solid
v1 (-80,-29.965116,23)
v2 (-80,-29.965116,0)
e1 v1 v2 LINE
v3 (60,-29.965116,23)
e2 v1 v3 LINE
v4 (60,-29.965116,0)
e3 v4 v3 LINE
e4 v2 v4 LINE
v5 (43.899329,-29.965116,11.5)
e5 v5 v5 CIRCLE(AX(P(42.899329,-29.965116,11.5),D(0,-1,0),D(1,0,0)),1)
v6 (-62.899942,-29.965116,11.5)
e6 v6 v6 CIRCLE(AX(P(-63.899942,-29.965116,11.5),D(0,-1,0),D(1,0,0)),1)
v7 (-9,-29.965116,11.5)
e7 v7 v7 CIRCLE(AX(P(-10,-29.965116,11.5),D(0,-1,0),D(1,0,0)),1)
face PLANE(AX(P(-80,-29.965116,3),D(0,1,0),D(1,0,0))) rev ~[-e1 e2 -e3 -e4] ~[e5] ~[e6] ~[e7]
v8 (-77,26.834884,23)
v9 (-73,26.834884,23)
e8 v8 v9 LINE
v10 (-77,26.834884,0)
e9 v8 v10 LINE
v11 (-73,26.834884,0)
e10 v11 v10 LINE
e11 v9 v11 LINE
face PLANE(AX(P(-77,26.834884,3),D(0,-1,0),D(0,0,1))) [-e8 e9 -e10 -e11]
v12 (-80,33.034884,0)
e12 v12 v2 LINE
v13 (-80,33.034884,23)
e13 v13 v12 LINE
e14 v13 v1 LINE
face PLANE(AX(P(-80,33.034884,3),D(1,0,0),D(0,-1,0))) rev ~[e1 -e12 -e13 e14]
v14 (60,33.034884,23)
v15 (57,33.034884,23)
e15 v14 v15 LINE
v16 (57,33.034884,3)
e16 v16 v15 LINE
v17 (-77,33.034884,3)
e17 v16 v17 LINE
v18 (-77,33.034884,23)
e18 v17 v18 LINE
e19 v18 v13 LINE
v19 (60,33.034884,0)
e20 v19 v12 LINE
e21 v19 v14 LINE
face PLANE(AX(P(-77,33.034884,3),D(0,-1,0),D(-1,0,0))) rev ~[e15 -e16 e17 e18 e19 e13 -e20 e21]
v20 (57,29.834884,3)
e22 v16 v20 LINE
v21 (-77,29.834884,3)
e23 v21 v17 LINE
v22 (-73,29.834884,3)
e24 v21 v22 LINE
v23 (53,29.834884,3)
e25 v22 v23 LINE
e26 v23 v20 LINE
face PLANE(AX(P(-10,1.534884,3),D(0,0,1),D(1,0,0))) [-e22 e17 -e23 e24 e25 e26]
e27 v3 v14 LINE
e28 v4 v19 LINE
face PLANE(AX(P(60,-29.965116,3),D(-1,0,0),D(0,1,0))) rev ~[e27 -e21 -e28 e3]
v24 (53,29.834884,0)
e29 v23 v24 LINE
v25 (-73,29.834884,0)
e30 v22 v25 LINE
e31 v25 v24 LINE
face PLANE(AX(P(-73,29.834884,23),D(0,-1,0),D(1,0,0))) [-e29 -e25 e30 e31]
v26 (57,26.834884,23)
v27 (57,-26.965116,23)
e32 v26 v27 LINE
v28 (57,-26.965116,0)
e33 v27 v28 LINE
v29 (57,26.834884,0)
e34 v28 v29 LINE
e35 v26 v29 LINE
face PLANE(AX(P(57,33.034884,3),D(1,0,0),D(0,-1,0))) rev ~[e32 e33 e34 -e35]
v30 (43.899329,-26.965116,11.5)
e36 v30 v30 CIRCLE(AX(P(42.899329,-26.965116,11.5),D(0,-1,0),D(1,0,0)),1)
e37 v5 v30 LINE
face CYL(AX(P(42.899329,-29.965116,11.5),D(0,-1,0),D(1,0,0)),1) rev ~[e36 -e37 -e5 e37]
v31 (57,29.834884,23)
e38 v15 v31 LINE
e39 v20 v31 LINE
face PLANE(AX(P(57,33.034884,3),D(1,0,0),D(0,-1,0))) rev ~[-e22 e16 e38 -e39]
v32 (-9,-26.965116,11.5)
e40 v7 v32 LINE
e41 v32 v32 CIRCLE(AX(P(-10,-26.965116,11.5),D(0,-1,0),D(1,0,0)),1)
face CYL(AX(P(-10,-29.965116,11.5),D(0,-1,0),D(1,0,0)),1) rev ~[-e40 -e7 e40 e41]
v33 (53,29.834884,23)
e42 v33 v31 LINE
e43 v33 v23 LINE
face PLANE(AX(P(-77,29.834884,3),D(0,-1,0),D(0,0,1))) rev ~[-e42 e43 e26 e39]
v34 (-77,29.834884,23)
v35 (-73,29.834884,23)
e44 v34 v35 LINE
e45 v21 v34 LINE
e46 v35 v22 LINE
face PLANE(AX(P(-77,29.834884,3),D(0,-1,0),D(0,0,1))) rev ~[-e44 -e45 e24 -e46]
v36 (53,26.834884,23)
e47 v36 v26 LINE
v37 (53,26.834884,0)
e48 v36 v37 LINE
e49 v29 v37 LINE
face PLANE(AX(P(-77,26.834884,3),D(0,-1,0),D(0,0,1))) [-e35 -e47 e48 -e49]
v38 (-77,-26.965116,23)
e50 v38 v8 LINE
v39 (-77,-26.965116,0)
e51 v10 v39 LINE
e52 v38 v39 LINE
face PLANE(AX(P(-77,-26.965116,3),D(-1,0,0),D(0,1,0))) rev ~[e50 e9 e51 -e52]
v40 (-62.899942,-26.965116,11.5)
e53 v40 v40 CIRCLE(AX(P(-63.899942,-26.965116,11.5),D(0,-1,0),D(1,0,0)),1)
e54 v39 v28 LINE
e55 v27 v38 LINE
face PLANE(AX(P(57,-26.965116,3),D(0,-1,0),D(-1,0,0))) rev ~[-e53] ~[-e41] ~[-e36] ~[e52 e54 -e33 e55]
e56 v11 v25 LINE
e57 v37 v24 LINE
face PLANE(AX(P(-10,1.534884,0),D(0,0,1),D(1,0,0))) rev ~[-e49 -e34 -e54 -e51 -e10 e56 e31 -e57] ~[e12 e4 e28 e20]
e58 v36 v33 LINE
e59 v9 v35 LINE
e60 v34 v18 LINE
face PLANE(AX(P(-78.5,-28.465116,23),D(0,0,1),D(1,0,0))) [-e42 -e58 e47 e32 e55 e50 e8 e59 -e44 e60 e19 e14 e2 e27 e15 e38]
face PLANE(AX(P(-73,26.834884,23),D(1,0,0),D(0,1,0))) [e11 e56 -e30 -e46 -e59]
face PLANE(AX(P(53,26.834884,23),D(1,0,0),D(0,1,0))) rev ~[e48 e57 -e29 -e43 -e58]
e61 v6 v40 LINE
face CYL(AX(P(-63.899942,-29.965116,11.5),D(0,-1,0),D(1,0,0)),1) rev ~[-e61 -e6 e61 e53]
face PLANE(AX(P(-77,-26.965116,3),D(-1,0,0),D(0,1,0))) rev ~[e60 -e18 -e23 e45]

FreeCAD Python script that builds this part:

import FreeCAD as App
import Part
import Sketcher

V = App.Vector
Q = App.Units.Quantity


def add_polygon(sketch, points):
    """Adds a closed chain of lines whose ends are joined by coincident constraints."""
    first, n = sketch.GeometryCount, len(points)
    for a, b in zip(points, points[1:] + points[:1]):
        sketch.addGeometry(Part.LineSegment(App.Vector(*a, 0), App.Vector(*b, 0)), False)
    for i in range(n):
        sketch.addConstraint(Sketcher.Constraint("Coincident", first + i, 2, first + (i + 1) % n, 1))

doc = App.newDocument("Part")
body = doc.addObject("PartDesign::Body", "Body")

# Sketch on XY plane
sketch1 = doc.addObject("Sketcher::SketchObject", "Sketch")
body.addObject(sketch1)
sketch1.AttachmentSupport = (doc.XY_Plane, [""])
sketch1.MapMode = "FlatFace"
add_polygon(sketch1, [(-80, 33), (-80, -30), (60, -30), (60, 33)])  # lines 0-3
sketch1.addGeometry(Part.Circle(V(25, 0, 0), V(0, 0, 1), 8), False)  # 4
sketch1.addGeometry(Part.Circle(V(-45, 1, 0), V(0, 0, 1), 8), False)  # 5
sketch1.addConstraint(Sketcher.Constraint("Vertical", 0))
sketch1.addConstraint(Sketcher.Constraint("Horizontal", 1))
sketch1.addConstraint(Sketcher.Constraint("Vertical", 2))
sketch1.addConstraint(Sketcher.Constraint("Horizontal", 3))
sketch1.addConstraint(Sketcher.Constraint("Equal", 4, 5))
sketch1.addConstraint(Sketcher.Constraint("Diameter", 4, Q("16 mm")))
sketch1.addConstraint(Sketcher.Constraint("DistanceX", 1, 1, 1, 2, Q("140 mm")))
sketch1.addConstraint(Sketcher.Constraint("DistanceY", 0, 2, 0, 1, Q("63 mm")))
sketch1.addConstraint(Sketcher.Constraint("DistanceX", -1, 1, 4, 3, Q("25 mm")))
sketch1.addConstraint(Sketcher.Constraint("DistanceX", 5, 3, -1, 1, Q("45 mm")))
sketch1.addConstraint(Sketcher.Constraint("DistanceX", 0, 2, -1, 1, Q("80 mm")))
sketch1.addConstraint(Sketcher.Constraint("DistanceY", 0, 2, 5, 3, Q("31 mm")))
sketch1.addConstraint(Sketcher.Constraint("DistanceY", 4, 3, -1, 1, Q("0.468963 mm")))
sketch1.addConstraint(Sketcher.Constraint("DistanceY", -1, 1, 5, 3, Q("1.034884 mm")))
pad1 = doc.addObject("PartDesign::Pad", "Pad")
body.addObject(pad1)
pad1.Profile = sketch1
pad1.Length = 3

# Sketch on XY plane
sketch2 = doc.addObject("Sketcher::SketchObject", "Sketch001")
body.addObject(sketch2)
sketch2.AttachmentSupport = (doc.XY_Plane, [""])
sketch2.MapMode = "FlatFace"
sketch2.AttachmentOffset = App.Placement(V(0, 0, 3), App.Rotation())
add_polygon(sketch2, [(-80, -30), (60, -30), (60, 33), (57, 33), (57, -27), (-77, -27), (-77, 33), (-80, 33)])  # lines 0-7
sketch2.addConstraint(Sketcher.Constraint("Horizontal", 0))
sketch2.addConstraint(Sketcher.Constraint("Vertical", 1))
sketch2.addConstraint(Sketcher.Constraint("Horizontal", 2))
sketch2.addConstraint(Sketcher.Constraint("Vertical", 3))
sketch2.addConstraint(Sketcher.Constraint("Horizontal", 4))
sketch2.addConstraint(Sketcher.Constraint("Vertical", 5))
sketch2.addConstraint(Sketcher.Constraint("Horizontal", 6))
sketch2.addConstraint(Sketcher.Constraint("Vertical", 7))
sketch2.addConstraint(Sketcher.Constraint("Horizontal", 2, 2, 5, 2))
sketch2.addConstraint(Sketcher.Constraint("Equal", 2, 6))
sketch2.addConstraint(Sketcher.Constraint("DistanceX", 0, 1, 0, 2, Q("140 mm")))
sketch2.addConstraint(Sketcher.Constraint("DistanceX", 2, 2, 2, 1, Q("3 mm")))
sketch2.addConstraint(Sketcher.Constraint("DistanceY", 1, 1, 1, 2, Q("63 mm")))
sketch2.addConstraint(Sketcher.Constraint("DistanceY", 3, 2, 3, 1, Q("60 mm")))
sketch2.addConstraint(Sketcher.Constraint("DistanceX", -1, 1, 0, 2, Q("60 mm")))
sketch2.addConstraint(Sketcher.Constraint("DistanceY", 0, 2, -1, 1, Q("29.965116 mm")))
pad2 = doc.addObject("PartDesign::Pad", "Pad001")
body.addObject(pad2)
pad2.Profile = sketch2
pad2.Length = 20

# Sketch on YZ plane
sketch3 = doc.addObject("Sketcher::SketchObject", "Sketch002")
body.addObject(sketch3)
sketch3.AttachmentSupport = (doc.YZ_Plane, [""])
sketch3.MapMode = "FlatFace"
sketch3.AttachmentOffset = App.Placement(V(0, 0, -77), App.Rotation())
add_polygon(sketch3, [(26.8, 23), (26.8, 3), (29.8, 3), (29.8, 23)])  # lines 0-3
sketch3.addConstraint(Sketcher.Constraint("Vertical", 0))
sketch3.addConstraint(Sketcher.Constraint("Horizontal", 1))
sketch3.addConstraint(Sketcher.Constraint("Vertical", 2))
sketch3.addConstraint(Sketcher.Constraint("Horizontal", 3))
sketch3.addConstraint(Sketcher.Constraint("DistanceX", 1, 1, 1, 2, Q("3 mm")))
sketch3.addConstraint(Sketcher.Constraint("DistanceY", 0, 2, 0, 1, Q("20 mm")))
sketch3.addConstraint(Sketcher.Constraint("DistanceY", -1, 1, 0, 2, Q("3 mm")))
sketch3.addConstraint(Sketcher.Constraint("DistanceX", -1, 1, 0, 2, Q("26.834884 mm")))
pad3 = doc.addObject("PartDesign::Pad", "Pad002")
body.addObject(pad3)
pad3.Profile = sketch3
pad3.Length = 134

# Sketch on XY plane
sketch4 = doc.addObject("Sketcher::SketchObject", "Sketch003")
body.addObject(sketch4)
sketch4.AttachmentSupport = (doc.XY_Plane, [""])
sketch4.MapMode = "FlatFace"
sketch4.AttachmentOffset = App.Placement(V(0, 0, 23), App.Rotation())
add_polygon(sketch4, [(-73, 29.8), (-73, 26.8), (53, 26.8), (53, 29.8)])  # lines 0-3
sketch4.addConstraint(Sketcher.Constraint("Vertical", 0))
sketch4.addConstraint(Sketcher.Constraint("Horizontal", 1))
sketch4.addConstraint(Sketcher.Constraint("Vertical", 2))
sketch4.addConstraint(Sketcher.Constraint("Horizontal", 3))
sketch4.addConstraint(Sketcher.Constraint("DistanceX", 1, 1, 1, 2, Q("126 mm")))
sketch4.addConstraint(Sketcher.Constraint("DistanceY", 0, 2, 0, 1, Q("3 mm")))
sketch4.addConstraint(Sketcher.Constraint("DistanceX", 0, 2, -1, 1, Q("73 mm")))
sketch4.addConstraint(Sketcher.Constraint("DistanceY", -1, 1, 0, 2, Q("26.834884 mm")))
pocket1 = doc.addObject("PartDesign::Pocket", "Pocket")
body.addObject(pocket1)
pocket1.Profile = sketch4
pocket1.Length = 40

# Sketch on XZ plane
sketch5 = doc.addObject("Sketcher::SketchObject", "Sketch004")
body.addObject(sketch5)
sketch5.AttachmentSupport = (doc.XZ_Plane, [""])
sketch5.MapMode = "FlatFace"
sketch5.AttachmentOffset = App.Placement(V(0, 0, 26.965116), App.Rotation())
sketch5.addGeometry(Part.Circle(V(-47, 27, 0), V(0, 0, 1), 1.5), False)
sketch5.addGeometry(Part.Circle(V(27, 27, 0), V(0, 0, 1), 1.5), False)
sketch5.addGeometry(Part.Circle(V(-10, 27, 0), V(0, 0, 1), 1.5), False)
sketch5.addConstraint(Sketcher.Constraint("Equal", 0, 1))
sketch5.addConstraint(Sketcher.Constraint("Equal", 1, 2))
sketch5.addConstraint(Sketcher.Constraint("Horizontal", 0, 3, 1, 3))
sketch5.addConstraint(Sketcher.Constraint("Horizontal", 1, 3, 2, 3))
sketch5.addConstraint(Sketcher.Constraint("Diameter", 0, Q("3 mm")))
sketch5.addConstraint(Sketcher.Constraint("DistanceX", 0, 3, -1, 1, Q("47 mm")))
sketch5.addConstraint(Sketcher.Constraint("DistanceX", -1, 1, 1, 3, Q("27 mm")))
sketch5.addConstraint(Sketcher.Constraint("DistanceX", 2, 3, -1, 1, Q("10 mm")))
sketch5.addConstraint(Sketcher.Constraint("DistanceY", -1, 1, 0, 3, Q("26.988985 mm")))
pocket2 = doc.addObject("PartDesign::Pocket", "Pocket001")
body.addObject(pocket2)
pocket2.Profile = sketch5
pocket2.Length = 3
pocket2.Reversed = True

# Sketch on XY plane
sketch6 = doc.addObject("Sketcher::SketchObject", "Sketch005")
body.addObject(sketch6)
sketch6.AttachmentSupport = (doc.XY_Plane, [""])
sketch6.MapMode = "FlatFace"
sketch6.AttachmentOffset = App.Placement(V(0, 0, 3), App.Rotation())
add_polygon(sketch6, [(-77, 27), (-77, -27), (57, -27), (57, 27)])  # lines 0-3
sketch6.addGeometry(Part.Circle(V(25, 0, 0), V(0, 0, 1), 8), False)  # 4
sketch6.addGeometry(Part.Circle(V(-45, 1, 0), V(0, 0, 1), 8), False)  # 5
sketch6.addConstraint(Sketcher.Constraint("Vertical", 0))
sketch6.addConstraint(Sketcher.Constraint("Horizontal", 1))
sketch6.addConstraint(Sketcher.Constraint("Vertical", 2))
sketch6.addConstraint(Sketcher.Constraint("Horizontal", 3))
sketch6.addConstraint(Sketcher.Constraint("Equal", 4, 5))
sketch6.addConstraint(Sketcher.Constraint("Diameter", 4, Q("16 mm")))
sketch6.addConstraint(Sketcher.Constraint("DistanceX", 1, 1, 1, 2, Q("134 mm")))
sketch6.addConstraint(Sketcher.Constraint("DistanceY", 0, 2, 0, 1, Q("53.8 mm")))
sketch6.addConstraint(Sketcher.Constraint("DistanceX", -1, 1, 4, 3, Q("25 mm")))
sketch6.addConstraint(Sketcher.Constraint("DistanceX", 5, 3, -1, 1, Q("45 mm")))
sketch6.addConstraint(Sketcher.Constraint("DistanceX", 0, 2, -1, 1, Q("77 mm")))
sketch6.addConstraint(Sketcher.Constraint("DistanceY", 0, 2, 5, 3, Q("28 mm")))
sketch6.addConstraint(Sketcher.Constraint("DistanceY", 4, 3, -1, 1, Q("0.468963 mm")))
sketch6.addConstraint(Sketcher.Constraint("DistanceY", -1, 1, 5, 3, Q("1.034884 mm")))
pocket3 = doc.addObject("PartDesign::Pocket", "Pocket002")
body.addObject(pocket3)
pocket3.Profile = sketch6
pocket3.Length = 40

# Sketch on XZ plane
sketch7 = doc.addObject("Sketcher::SketchObject", "Sketch006")
body.addObject(sketch7)
sketch7.AttachmentSupport = (doc.XZ_Plane, [""])
sketch7.MapMode = "FlatFace"
sketch7.AttachmentOffset = App.Placement(V(0, 0, 29.965116), App.Rotation())
sketch7.addGeometry(Part.Circle(V(-63.9, 11.5, 0), V(0, 0, 1), 1), False)
sketch7.addGeometry(Part.Circle(V(-10, 11.5, 0), V(0, 0, 1), 1), False)
sketch7.addGeometry(Part.Circle(V(42.9, 11.5, 0), V(0, 0, 1), 1), False)
sketch7.addConstraint(Sketcher.Constraint("Equal", 0, 1))
sketch7.addConstraint(Sketcher.Constraint("Equal", 1, 2))
sketch7.addConstraint(Sketcher.Constraint("Horizontal", 0, 3, 1, 3))
sketch7.addConstraint(Sketcher.Constraint("Horizontal", 1, 3, 2, 3))
sketch7.addConstraint(Sketcher.Constraint("Diameter", 0, Q("2 mm")))
sketch7.addConstraint(Sketcher.Constraint("DistanceX", 1, 3, -1, 1, Q("10 mm")))
sketch7.addConstraint(Sketcher.Constraint("DistanceY", -1, 1, 0, 3, Q("11.5 mm")))
sketch7.addConstraint(Sketcher.Constraint("DistanceX", -1, 1, 2, 3, Q("42.899329 mm")))
sketch7.addConstraint(Sketcher.Constraint("DistanceX", 0, 3, 2, 3, Q("106.799271 mm")))
pocket4 = doc.addObject("PartDesign::Pocket", "Pocket003")
body.addObject(pocket4)
pocket4.Profile = sketch7
pocket4.Length = 3

doc.recompute()
